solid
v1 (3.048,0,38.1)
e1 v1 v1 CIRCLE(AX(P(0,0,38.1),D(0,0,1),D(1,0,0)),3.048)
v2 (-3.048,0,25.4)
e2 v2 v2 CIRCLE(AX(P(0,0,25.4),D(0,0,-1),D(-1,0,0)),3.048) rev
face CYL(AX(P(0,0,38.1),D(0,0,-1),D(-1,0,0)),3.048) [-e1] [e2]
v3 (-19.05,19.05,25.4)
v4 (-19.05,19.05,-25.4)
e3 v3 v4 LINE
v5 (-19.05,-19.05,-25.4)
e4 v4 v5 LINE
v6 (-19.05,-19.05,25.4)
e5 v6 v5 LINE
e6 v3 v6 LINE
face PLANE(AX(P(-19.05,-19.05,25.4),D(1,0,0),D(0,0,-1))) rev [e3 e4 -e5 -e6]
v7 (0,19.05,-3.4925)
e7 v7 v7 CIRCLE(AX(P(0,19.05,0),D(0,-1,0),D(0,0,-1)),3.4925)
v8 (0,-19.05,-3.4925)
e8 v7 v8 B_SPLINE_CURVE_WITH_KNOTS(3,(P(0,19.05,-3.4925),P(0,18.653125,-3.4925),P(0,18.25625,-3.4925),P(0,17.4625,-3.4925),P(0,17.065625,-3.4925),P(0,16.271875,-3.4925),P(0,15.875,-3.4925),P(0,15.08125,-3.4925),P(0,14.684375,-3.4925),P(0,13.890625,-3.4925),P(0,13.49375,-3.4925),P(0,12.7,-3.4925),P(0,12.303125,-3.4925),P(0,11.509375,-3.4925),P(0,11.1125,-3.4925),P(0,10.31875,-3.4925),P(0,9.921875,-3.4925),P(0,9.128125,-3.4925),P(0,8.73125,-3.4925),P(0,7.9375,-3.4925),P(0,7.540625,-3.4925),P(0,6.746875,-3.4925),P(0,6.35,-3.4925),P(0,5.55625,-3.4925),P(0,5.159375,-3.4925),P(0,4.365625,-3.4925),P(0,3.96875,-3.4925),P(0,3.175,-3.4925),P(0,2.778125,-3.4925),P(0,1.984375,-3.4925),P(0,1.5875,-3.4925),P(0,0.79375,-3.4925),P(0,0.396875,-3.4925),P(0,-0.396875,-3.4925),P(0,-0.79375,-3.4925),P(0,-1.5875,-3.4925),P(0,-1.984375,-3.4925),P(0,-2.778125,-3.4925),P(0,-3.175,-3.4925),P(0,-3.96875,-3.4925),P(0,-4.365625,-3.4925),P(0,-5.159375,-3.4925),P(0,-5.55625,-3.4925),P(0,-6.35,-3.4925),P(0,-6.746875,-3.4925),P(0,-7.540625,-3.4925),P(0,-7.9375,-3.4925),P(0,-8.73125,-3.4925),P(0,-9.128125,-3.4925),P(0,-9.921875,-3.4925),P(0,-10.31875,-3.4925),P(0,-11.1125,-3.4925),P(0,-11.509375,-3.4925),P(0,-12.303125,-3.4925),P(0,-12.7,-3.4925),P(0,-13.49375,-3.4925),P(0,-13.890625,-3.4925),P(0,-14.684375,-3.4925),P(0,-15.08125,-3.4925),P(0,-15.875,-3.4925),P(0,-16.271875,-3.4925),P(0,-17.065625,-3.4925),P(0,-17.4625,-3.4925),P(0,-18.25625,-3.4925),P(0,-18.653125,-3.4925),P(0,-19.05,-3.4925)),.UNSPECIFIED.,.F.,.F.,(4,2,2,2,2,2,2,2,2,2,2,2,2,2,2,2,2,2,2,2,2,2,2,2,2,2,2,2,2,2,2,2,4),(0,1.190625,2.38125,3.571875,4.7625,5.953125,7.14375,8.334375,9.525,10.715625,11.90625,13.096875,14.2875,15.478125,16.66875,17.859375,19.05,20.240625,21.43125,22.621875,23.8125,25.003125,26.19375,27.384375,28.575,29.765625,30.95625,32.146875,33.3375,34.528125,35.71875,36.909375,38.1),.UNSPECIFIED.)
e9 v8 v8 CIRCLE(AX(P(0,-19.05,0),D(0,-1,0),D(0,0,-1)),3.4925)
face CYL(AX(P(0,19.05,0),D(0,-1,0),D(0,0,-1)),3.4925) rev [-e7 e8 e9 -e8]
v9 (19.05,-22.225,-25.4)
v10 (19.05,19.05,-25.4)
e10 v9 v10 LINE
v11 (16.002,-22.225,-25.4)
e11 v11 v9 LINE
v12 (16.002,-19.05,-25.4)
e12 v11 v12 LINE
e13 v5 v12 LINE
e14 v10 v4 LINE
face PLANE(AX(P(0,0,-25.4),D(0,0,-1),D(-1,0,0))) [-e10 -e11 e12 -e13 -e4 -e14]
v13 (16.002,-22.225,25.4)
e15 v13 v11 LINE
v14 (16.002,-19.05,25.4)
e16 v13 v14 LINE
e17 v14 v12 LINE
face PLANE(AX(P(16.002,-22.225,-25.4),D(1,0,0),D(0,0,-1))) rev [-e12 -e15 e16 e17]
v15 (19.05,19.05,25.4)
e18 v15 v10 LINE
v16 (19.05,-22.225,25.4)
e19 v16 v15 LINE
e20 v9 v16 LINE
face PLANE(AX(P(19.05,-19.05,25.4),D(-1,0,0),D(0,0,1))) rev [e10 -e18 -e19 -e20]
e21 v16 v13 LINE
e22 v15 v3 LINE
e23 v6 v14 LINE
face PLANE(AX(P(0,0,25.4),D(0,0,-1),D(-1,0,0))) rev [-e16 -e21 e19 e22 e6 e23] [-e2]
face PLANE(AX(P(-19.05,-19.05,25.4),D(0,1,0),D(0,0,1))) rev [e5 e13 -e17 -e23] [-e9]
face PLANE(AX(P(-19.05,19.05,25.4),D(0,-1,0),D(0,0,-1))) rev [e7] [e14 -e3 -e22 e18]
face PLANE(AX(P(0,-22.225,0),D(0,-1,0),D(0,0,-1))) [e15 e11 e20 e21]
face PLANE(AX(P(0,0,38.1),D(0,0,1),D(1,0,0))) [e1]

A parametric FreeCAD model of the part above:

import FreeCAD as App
import Part
import Sketcher

V = App.Vector
Q = App.Units.Quantity


def add_polygon(sketch, points):
    """Adds a closed chain of lines whose ends are joined by coincident constraints."""
    first, n = sketch.GeometryCount, len(points)
    for a, b in zip(points, points[1:] + points[:1]):
        sketch.addGeometry(Part.LineSegment(App.Vector(*a, 0), App.Vector(*b, 0)), False)
    for i in range(n):
        sketch.addConstraint(Sketcher.Constraint("Coincident", first + i, 2, first + (i + 1) % n, 1))

doc = App.newDocument("Part")
body = doc.addObject("PartDesign::Body", "Body")

# Sketch on XY plane
sketch1 = body.newObject("Sketcher::SketchObject", "Sketch")
sketch1.AttachmentSupport = (doc.getObject("XY_Plane"), [""])
sketch1.MapMode = "FlatFace"
add_polygon(sketch1, [(-19, 19), (-19, -19), (19, -19), (19, 19)])  # lines 0-3
sketch1.addConstraint(Sketcher.Constraint("Vertical", 0))
sketch1.addConstraint(Sketcher.Constraint("Horizontal", 1))
sketch1.addConstraint(Sketcher.Constraint("Vertical", 2))
sketch1.addConstraint(Sketcher.Constraint("Horizontal", 3))
sketch1.addConstraint(Sketcher.Constraint("Symmetric", 0, 2, 2, 2, -1, 1))
sketch1.addConstraint(Sketcher.Constraint("Equal", 3, 0))
sketch1.addConstraint(Sketcher.Constraint("DistanceX", 1, 1, 1, 2, Q("1.5 in")))
pad1 = body.newObject("PartDesign::Pad", "Pad")
pad1.Profile = sketch1
pad1.Length = Q("2 in")
pad1.Midplane = True

# Sketch on XY plane
sketch2 = body.newObject("Sketcher::SketchObject", "Sketch001")
sketch2.AttachmentSupport = (doc.getObject("XY_Plane"), [""])
sketch2.MapMode = "FlatFace"
sketch2.AttachmentOffset = App.Placement(V(0, 0, 1 * 25.4), App.Rotation())
sketch2.addGeometry(Part.Circle(V(0, 0, 0), V(0, 0, 1), 3), False)
sketch2.addConstraint(Sketcher.Constraint("Coincident", 0, 3, -1, 1))
sketch2.addConstraint(Sketcher.Constraint("Diameter", 0, Q("0.24 in")))
pad2 = body.newObject("PartDesign::Pad", "Pad001")
pad2.Profile = sketch2
pad2.Length = Q("0.5 in")

# Sketch on XZ plane
sketch3 = body.newObject("Sketcher::SketchObject", "Sketch002")
sketch3.AttachmentSupport = (doc.getObject("XZ_Plane"), [""])
sketch3.MapMode = "FlatFace"
sketch3.AttachmentOffset = App.Placement(V(0, 0, 0.75 * 25.4), App.Rotation())
add_polygon(sketch3, [(16, 25.4), (16, -25.4), (19.1, -25.4), (19.1, 25.4)])  # lines 0-3
sketch3.addConstraint(Sketcher.Constraint("Vertical", 0))
sketch3.addConstraint(Sketcher.Constraint("Horizontal", 1))
sketch3.addConstraint(Sketcher.Constraint("Vertical", 2))
sketch3.addConstraint(Sketcher.Constraint("Horizontal", 3))
sketch3.addConstraint(Sketcher.Constraint("DistanceY", 0, 2, 0, 1, Q("2 in")))
sketch3.addConstraint(Sketcher.Constraint("DistanceY", 0, 2, -1, 1, Q("1 in")))
sketch3.addConstraint(Sketcher.Constraint("DistanceX", 1, 1, 1, 2, Q("0.12 in")))
sketch3.addConstraint(Sketcher.Constraint("DistanceX", -1, 1, 0, 2, Q("0.63 in")))
pad3 = body.newObject("PartDesign::Pad", "Pad002")
pad3.Profile = sketch3
pad3.Length = Q("0.125 in")

# Sketch on XZ plane
sketch4 = body.newObject("Sketcher::SketchObject", "Sketch003")
sketch4.AttachmentSupport = (doc.getObject("XZ_Plane"), [""])
sketch4.MapMode = "FlatFace"
sketch4.AttachmentOffset = App.Placement(V(0, 0, 0.75 * 25.4), App.Rotation())
sketch4.addGeometry(Part.Circle(V(0, 0, 0), V(0, 0, 1), 3.5), False)
sketch4.addConstraint(Sketcher.Constraint("Coincident", 0, 3, -1, 1))
sketch4.addConstraint(Sketcher.Constraint("Diameter", 0, Q("0.275 in")))
pocket1 = body.newObject("PartDesign::Pocket", "Pocket")
pocket1.Profile = sketch4
pocket1.Type = "ThroughAll"

doc.recompute()
